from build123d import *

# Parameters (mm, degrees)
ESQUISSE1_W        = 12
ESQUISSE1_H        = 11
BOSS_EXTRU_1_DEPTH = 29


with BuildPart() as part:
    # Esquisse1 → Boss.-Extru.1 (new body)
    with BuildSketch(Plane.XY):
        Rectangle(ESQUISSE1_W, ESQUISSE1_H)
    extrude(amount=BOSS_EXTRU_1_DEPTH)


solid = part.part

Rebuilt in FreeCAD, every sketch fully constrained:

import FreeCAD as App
import Part
import Sketcher
Q = App.Units.Quantity


def add_polygon(sketch, points):
    """Adds a closed chain of lines whose ends are joined by coincident constraints."""
    first, n = sketch.GeometryCount, len(points)
    for a, b in zip(points, points[1:] + points[:1]):
        sketch.addGeometry(Part.LineSegment(App.Vector(*a, 0), App.Vector(*b, 0)), False)
    for i in range(n):
        sketch.addConstraint(Sketcher.Constraint("Coincident", first + i, 2, first + (i + 1) % n, 1))

doc = App.newDocument("Part")
body = doc.addObject("PartDesign::Body", "Body")

# Sketch on XY plane
sketch1 = doc.addObject("Sketcher::SketchObject", "Sketch")
body.addObject(sketch1)
sketch1.AttachmentSupport = (doc.XY_Plane, [""])
sketch1.MapMode = "FlatFace"
add_polygon(sketch1, [(-6, 6), (-6, -6), (6, -6), (6, 6)])  # lines 0-3
sketch1.addConstraint(Sketcher.Constraint("Vertical", 0))
sketch1.addConstraint(Sketcher.Constraint("Horizontal", 1))
sketch1.addConstraint(Sketcher.Constraint("Vertical", 2))
sketch1.addConstraint(Sketcher.Constraint("Horizontal", 3))
sketch1.addConstraint(Sketcher.Constraint("Symmetric", 0, 2, 2, 2, -1, 1))
sketch1.addConstraint(Sketcher.Constraint("DistanceX", 1, 1, 1, 2, Q("12 mm")))
sketch1.addConstraint(Sketcher.Constraint("DistanceY", 0, 2, 0, 1, Q("11 mm")))
pad1 = doc.addObject("PartDesign::Pad", "Pad")
body.addObject(pad1)
pad1.Profile = sketch1
pad1.Length = 29

doc.recompute()
